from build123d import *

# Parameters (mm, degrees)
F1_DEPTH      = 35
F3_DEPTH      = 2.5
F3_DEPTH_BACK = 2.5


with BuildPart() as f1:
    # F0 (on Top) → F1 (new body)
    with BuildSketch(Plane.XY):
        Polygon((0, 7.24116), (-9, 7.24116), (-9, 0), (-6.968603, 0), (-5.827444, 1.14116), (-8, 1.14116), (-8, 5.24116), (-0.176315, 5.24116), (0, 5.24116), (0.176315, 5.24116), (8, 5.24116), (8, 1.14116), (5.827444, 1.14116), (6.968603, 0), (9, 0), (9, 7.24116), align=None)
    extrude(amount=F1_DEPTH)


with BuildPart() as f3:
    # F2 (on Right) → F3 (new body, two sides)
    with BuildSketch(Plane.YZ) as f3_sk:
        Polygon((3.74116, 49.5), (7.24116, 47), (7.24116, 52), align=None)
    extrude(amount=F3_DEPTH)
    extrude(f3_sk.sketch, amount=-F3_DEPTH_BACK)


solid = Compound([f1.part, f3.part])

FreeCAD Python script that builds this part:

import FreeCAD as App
import Part
import Sketcher

V = App.Vector

doc = App.newDocument("Part")
params = doc.addObject("Spreadsheet::Sheet", "Params")
for row, (alias, value) in enumerate([
    ("sketch1_width", "16 mm"),
    ("sketch1_width2", "18 mm"),
    ("sketch1_height", "4.1 mm"),
    ("pad1_length", "35 mm"),
    ("sketch2_height", "5 mm"),
    ("pad2_length", "2.5 mm"),
    ("pad2_length2", "2.5 mm"),
], start=1):
    params.set(f"A{row}", alias)
    params.set(f"B{row}", "=" + value)
    params.setAlias(f"B{row}", alias)

body = doc.addObject("PartDesign::Body", "Body")

sketch1 = doc.addObject("Sketcher::SketchObject", "Sketch")
body.addObject(sketch1)
sketch1.AttachmentSupport = (doc.XY_Plane, [""])
sketch1.MapMode = "FlatFace"
sketch1.addGeometry(Part.LineSegment(V(-9, 7.2, 0), V(-9, 0, 0)), False)
sketch1.addGeometry(Part.LineSegment(V(-9, 0, 0), V(-7, 0, 0)), False)
sketch1.addGeometry(Part.LineSegment(V(-7, 0, 0), V(-5.8, 1.1, 0)), False)
sketch1.addGeometry(Part.LineSegment(V(-5.8, 1.1, 0), V(-8, 1.1, 0)), False)
sketch1.addGeometry(Part.LineSegment(V(-8, 1.1, 0), V(-8, 5.2, 0)), False)
sketch1.addGeometry(Part.LineSegment(V(-8, 5.2, 0), V(8, 5.2, 0)), False)
sketch1.addGeometry(Part.LineSegment(V(8, 5.2, 0), V(8, 1.1, 0)), False)
sketch1.addGeometry(Part.LineSegment(V(8, 1.1, 0), V(5.8, 1.1, 0)), False)
sketch1.addGeometry(Part.LineSegment(V(5.8, 1.1, 0), V(7, 0, 0)), False)
sketch1.addGeometry(Part.LineSegment(V(7, 0, 0), V(9, 0, 0)), False)
sketch1.addGeometry(Part.LineSegment(V(9, 0, 0), V(9, 7.2, 0)), False)
sketch1.addGeometry(Part.LineSegment(V(9, 7.2, 0), V(-9, 7.2, 0)), False)
sketch1.addConstraint(Sketcher.Constraint("Coincident", 0, 2, 1, 1))
sketch1.addConstraint(Sketcher.Constraint("Coincident", 1, 2, 2, 1))
sketch1.addConstraint(Sketcher.Constraint("Coincident", 2, 2, 3, 1))
sketch1.addConstraint(Sketcher.Constraint("Coincident", 3, 2, 4, 1))
sketch1.addConstraint(Sketcher.Constraint("Coincident", 4, 2, 5, 1))
sketch1.addConstraint(Sketcher.Constraint("Coincident", 5, 2, 6, 1))
sketch1.addConstraint(Sketcher.Constraint("Coincident", 6, 2, 7, 1))
sketch1.addConstraint(Sketcher.Constraint("Coincident", 7, 2, 8, 1))
sketch1.addConstraint(Sketcher.Constraint("Coincident", 8, 2, 9, 1))
sketch1.addConstraint(Sketcher.Constraint("Coincident", 9, 2, 10, 1))
sketch1.addConstraint(Sketcher.Constraint("Coincident", 10, 2, 11, 1))
sketch1.addConstraint(Sketcher.Constraint("Coincident", 11, 2, 0, 1))
sketch1.addConstraint(Sketcher.Constraint("Vertical", 0))
sketch1.addConstraint(Sketcher.Constraint("Horizontal", 1))
sketch1.addConstraint(Sketcher.Constraint("Horizontal", 3))
sketch1.addConstraint(Sketcher.Constraint("Vertical", 4))
sketch1.addConstraint(Sketcher.Constraint("Horizontal", 5))
sketch1.addConstraint(Sketcher.Constraint("Vertical", 6))
sketch1.addConstraint(Sketcher.Constraint("Horizontal", 7))
sketch1.addConstraint(Sketcher.Constraint("Horizontal", 9))
sketch1.addConstraint(Sketcher.Constraint("Vertical", 10))
sketch1.addConstraint(Sketcher.Constraint("Horizontal", 11))
sketch1.addConstraint(Sketcher.Constraint("Symmetric", 1, 2, 8, 2, -1, 1))
sketch1.addConstraint(Sketcher.Constraint("Symmetric", 3, 2, 6, 2, -2))
sketch1.addConstraint(Sketcher.Constraint("Symmetric", 0, 2, 9, 2, -2))
sketch1.addConstraint(Sketcher.Constraint("Perpendicular", 2, 8))
sketch1.addConstraint(Sketcher.Constraint("Equal", 3, 7))
sketch1.addConstraint(Sketcher.Constraint("DistanceX", 5, 1, 5, 2, 16.0))
sketch1.addConstraint(Sketcher.Constraint("DistanceX", 11, 2, 11, 1, 18.0))
sketch1.addConstraint(Sketcher.Constraint("DistanceY", 4, 1, 4, 2, 4.1))
sketch1.addConstraint(Sketcher.Constraint("DistanceY", 5, 2, 10, 2, 2.0))
sketch1.addConstraint(Sketcher.Constraint("DistanceY", 0, 2, 0, 1, 7.24116))
sketch1.addConstraint(Sketcher.Constraint("DistanceX", 1, 1, 1, 2, 2.031397))
sketch1.setExpression("Constraints[27]", "Params.sketch1_width")
sketch1.setExpression("Constraints[28]", "Params.sketch1_width2")
sketch1.setExpression("Constraints[29]", "Params.sketch1_height")
pad1 = doc.addObject("PartDesign::Pad", "Pad")
body.addObject(pad1)
pad1.Profile = sketch1
pad1.setExpression("Length", "Params.pad1_length")
body2 = doc.addObject("PartDesign::Body", "Body001")

sketch2 = doc.addObject("Sketcher::SketchObject", "Sketch001")
body2.addObject(sketch2)
sketch2.AttachmentSupport = (doc.getObject("YZ_Plane001"), [""])
sketch2.MapMode = "FlatFace"
sketch2.addGeometry(Part.LineSegment(V(3.7, 49.5, 0), V(7.2, 47, 0)), False)
sketch2.addGeometry(Part.LineSegment(V(7.2, 47, 0), V(7.2, 52, 0)), False)
sketch2.addGeometry(Part.LineSegment(V(7.2, 52, 0), V(3.7, 49.5, 0)), False)
sketch2.addConstraint(Sketcher.Constraint("Coincident", 0, 2, 1, 1))
sketch2.addConstraint(Sketcher.Constraint("Coincident", 1, 2, 2, 1))
sketch2.addConstraint(Sketcher.Constraint("Coincident", 2, 2, 0, 1))
sketch2.addConstraint(Sketcher.Constraint("Vertical", 1))
sketch2.addConstraint(Sketcher.Constraint("Equal", 0, 2))
sketch2.addConstraint(Sketcher.Constraint("DistanceY", 1, 1, 1, 2, 5.0))
sketch2.addConstraint(Sketcher.Constraint("DistanceY", -1, 1, 0, 2, 47.0))
sketch2.addConstraint(Sketcher.Constraint("DistanceX", 2, 2, 0, 2, 3.5))
sketch2.addConstraint(Sketcher.Constraint("DistanceX", -1, 1, 0, 2, 7.24116))
sketch2.setExpression("Constraints[5]", "Params.sketch2_height")
pad2 = doc.addObject("PartDesign::Pad", "Pad001")
body2.addObject(pad2)
pad2.Profile = sketch2
pad2.Type = "TwoLengths"
pad2.setExpression("Length", "Params.pad2_length")
pad2.setExpression("Length2", "Params.pad2_length2")

doc.recompute()
